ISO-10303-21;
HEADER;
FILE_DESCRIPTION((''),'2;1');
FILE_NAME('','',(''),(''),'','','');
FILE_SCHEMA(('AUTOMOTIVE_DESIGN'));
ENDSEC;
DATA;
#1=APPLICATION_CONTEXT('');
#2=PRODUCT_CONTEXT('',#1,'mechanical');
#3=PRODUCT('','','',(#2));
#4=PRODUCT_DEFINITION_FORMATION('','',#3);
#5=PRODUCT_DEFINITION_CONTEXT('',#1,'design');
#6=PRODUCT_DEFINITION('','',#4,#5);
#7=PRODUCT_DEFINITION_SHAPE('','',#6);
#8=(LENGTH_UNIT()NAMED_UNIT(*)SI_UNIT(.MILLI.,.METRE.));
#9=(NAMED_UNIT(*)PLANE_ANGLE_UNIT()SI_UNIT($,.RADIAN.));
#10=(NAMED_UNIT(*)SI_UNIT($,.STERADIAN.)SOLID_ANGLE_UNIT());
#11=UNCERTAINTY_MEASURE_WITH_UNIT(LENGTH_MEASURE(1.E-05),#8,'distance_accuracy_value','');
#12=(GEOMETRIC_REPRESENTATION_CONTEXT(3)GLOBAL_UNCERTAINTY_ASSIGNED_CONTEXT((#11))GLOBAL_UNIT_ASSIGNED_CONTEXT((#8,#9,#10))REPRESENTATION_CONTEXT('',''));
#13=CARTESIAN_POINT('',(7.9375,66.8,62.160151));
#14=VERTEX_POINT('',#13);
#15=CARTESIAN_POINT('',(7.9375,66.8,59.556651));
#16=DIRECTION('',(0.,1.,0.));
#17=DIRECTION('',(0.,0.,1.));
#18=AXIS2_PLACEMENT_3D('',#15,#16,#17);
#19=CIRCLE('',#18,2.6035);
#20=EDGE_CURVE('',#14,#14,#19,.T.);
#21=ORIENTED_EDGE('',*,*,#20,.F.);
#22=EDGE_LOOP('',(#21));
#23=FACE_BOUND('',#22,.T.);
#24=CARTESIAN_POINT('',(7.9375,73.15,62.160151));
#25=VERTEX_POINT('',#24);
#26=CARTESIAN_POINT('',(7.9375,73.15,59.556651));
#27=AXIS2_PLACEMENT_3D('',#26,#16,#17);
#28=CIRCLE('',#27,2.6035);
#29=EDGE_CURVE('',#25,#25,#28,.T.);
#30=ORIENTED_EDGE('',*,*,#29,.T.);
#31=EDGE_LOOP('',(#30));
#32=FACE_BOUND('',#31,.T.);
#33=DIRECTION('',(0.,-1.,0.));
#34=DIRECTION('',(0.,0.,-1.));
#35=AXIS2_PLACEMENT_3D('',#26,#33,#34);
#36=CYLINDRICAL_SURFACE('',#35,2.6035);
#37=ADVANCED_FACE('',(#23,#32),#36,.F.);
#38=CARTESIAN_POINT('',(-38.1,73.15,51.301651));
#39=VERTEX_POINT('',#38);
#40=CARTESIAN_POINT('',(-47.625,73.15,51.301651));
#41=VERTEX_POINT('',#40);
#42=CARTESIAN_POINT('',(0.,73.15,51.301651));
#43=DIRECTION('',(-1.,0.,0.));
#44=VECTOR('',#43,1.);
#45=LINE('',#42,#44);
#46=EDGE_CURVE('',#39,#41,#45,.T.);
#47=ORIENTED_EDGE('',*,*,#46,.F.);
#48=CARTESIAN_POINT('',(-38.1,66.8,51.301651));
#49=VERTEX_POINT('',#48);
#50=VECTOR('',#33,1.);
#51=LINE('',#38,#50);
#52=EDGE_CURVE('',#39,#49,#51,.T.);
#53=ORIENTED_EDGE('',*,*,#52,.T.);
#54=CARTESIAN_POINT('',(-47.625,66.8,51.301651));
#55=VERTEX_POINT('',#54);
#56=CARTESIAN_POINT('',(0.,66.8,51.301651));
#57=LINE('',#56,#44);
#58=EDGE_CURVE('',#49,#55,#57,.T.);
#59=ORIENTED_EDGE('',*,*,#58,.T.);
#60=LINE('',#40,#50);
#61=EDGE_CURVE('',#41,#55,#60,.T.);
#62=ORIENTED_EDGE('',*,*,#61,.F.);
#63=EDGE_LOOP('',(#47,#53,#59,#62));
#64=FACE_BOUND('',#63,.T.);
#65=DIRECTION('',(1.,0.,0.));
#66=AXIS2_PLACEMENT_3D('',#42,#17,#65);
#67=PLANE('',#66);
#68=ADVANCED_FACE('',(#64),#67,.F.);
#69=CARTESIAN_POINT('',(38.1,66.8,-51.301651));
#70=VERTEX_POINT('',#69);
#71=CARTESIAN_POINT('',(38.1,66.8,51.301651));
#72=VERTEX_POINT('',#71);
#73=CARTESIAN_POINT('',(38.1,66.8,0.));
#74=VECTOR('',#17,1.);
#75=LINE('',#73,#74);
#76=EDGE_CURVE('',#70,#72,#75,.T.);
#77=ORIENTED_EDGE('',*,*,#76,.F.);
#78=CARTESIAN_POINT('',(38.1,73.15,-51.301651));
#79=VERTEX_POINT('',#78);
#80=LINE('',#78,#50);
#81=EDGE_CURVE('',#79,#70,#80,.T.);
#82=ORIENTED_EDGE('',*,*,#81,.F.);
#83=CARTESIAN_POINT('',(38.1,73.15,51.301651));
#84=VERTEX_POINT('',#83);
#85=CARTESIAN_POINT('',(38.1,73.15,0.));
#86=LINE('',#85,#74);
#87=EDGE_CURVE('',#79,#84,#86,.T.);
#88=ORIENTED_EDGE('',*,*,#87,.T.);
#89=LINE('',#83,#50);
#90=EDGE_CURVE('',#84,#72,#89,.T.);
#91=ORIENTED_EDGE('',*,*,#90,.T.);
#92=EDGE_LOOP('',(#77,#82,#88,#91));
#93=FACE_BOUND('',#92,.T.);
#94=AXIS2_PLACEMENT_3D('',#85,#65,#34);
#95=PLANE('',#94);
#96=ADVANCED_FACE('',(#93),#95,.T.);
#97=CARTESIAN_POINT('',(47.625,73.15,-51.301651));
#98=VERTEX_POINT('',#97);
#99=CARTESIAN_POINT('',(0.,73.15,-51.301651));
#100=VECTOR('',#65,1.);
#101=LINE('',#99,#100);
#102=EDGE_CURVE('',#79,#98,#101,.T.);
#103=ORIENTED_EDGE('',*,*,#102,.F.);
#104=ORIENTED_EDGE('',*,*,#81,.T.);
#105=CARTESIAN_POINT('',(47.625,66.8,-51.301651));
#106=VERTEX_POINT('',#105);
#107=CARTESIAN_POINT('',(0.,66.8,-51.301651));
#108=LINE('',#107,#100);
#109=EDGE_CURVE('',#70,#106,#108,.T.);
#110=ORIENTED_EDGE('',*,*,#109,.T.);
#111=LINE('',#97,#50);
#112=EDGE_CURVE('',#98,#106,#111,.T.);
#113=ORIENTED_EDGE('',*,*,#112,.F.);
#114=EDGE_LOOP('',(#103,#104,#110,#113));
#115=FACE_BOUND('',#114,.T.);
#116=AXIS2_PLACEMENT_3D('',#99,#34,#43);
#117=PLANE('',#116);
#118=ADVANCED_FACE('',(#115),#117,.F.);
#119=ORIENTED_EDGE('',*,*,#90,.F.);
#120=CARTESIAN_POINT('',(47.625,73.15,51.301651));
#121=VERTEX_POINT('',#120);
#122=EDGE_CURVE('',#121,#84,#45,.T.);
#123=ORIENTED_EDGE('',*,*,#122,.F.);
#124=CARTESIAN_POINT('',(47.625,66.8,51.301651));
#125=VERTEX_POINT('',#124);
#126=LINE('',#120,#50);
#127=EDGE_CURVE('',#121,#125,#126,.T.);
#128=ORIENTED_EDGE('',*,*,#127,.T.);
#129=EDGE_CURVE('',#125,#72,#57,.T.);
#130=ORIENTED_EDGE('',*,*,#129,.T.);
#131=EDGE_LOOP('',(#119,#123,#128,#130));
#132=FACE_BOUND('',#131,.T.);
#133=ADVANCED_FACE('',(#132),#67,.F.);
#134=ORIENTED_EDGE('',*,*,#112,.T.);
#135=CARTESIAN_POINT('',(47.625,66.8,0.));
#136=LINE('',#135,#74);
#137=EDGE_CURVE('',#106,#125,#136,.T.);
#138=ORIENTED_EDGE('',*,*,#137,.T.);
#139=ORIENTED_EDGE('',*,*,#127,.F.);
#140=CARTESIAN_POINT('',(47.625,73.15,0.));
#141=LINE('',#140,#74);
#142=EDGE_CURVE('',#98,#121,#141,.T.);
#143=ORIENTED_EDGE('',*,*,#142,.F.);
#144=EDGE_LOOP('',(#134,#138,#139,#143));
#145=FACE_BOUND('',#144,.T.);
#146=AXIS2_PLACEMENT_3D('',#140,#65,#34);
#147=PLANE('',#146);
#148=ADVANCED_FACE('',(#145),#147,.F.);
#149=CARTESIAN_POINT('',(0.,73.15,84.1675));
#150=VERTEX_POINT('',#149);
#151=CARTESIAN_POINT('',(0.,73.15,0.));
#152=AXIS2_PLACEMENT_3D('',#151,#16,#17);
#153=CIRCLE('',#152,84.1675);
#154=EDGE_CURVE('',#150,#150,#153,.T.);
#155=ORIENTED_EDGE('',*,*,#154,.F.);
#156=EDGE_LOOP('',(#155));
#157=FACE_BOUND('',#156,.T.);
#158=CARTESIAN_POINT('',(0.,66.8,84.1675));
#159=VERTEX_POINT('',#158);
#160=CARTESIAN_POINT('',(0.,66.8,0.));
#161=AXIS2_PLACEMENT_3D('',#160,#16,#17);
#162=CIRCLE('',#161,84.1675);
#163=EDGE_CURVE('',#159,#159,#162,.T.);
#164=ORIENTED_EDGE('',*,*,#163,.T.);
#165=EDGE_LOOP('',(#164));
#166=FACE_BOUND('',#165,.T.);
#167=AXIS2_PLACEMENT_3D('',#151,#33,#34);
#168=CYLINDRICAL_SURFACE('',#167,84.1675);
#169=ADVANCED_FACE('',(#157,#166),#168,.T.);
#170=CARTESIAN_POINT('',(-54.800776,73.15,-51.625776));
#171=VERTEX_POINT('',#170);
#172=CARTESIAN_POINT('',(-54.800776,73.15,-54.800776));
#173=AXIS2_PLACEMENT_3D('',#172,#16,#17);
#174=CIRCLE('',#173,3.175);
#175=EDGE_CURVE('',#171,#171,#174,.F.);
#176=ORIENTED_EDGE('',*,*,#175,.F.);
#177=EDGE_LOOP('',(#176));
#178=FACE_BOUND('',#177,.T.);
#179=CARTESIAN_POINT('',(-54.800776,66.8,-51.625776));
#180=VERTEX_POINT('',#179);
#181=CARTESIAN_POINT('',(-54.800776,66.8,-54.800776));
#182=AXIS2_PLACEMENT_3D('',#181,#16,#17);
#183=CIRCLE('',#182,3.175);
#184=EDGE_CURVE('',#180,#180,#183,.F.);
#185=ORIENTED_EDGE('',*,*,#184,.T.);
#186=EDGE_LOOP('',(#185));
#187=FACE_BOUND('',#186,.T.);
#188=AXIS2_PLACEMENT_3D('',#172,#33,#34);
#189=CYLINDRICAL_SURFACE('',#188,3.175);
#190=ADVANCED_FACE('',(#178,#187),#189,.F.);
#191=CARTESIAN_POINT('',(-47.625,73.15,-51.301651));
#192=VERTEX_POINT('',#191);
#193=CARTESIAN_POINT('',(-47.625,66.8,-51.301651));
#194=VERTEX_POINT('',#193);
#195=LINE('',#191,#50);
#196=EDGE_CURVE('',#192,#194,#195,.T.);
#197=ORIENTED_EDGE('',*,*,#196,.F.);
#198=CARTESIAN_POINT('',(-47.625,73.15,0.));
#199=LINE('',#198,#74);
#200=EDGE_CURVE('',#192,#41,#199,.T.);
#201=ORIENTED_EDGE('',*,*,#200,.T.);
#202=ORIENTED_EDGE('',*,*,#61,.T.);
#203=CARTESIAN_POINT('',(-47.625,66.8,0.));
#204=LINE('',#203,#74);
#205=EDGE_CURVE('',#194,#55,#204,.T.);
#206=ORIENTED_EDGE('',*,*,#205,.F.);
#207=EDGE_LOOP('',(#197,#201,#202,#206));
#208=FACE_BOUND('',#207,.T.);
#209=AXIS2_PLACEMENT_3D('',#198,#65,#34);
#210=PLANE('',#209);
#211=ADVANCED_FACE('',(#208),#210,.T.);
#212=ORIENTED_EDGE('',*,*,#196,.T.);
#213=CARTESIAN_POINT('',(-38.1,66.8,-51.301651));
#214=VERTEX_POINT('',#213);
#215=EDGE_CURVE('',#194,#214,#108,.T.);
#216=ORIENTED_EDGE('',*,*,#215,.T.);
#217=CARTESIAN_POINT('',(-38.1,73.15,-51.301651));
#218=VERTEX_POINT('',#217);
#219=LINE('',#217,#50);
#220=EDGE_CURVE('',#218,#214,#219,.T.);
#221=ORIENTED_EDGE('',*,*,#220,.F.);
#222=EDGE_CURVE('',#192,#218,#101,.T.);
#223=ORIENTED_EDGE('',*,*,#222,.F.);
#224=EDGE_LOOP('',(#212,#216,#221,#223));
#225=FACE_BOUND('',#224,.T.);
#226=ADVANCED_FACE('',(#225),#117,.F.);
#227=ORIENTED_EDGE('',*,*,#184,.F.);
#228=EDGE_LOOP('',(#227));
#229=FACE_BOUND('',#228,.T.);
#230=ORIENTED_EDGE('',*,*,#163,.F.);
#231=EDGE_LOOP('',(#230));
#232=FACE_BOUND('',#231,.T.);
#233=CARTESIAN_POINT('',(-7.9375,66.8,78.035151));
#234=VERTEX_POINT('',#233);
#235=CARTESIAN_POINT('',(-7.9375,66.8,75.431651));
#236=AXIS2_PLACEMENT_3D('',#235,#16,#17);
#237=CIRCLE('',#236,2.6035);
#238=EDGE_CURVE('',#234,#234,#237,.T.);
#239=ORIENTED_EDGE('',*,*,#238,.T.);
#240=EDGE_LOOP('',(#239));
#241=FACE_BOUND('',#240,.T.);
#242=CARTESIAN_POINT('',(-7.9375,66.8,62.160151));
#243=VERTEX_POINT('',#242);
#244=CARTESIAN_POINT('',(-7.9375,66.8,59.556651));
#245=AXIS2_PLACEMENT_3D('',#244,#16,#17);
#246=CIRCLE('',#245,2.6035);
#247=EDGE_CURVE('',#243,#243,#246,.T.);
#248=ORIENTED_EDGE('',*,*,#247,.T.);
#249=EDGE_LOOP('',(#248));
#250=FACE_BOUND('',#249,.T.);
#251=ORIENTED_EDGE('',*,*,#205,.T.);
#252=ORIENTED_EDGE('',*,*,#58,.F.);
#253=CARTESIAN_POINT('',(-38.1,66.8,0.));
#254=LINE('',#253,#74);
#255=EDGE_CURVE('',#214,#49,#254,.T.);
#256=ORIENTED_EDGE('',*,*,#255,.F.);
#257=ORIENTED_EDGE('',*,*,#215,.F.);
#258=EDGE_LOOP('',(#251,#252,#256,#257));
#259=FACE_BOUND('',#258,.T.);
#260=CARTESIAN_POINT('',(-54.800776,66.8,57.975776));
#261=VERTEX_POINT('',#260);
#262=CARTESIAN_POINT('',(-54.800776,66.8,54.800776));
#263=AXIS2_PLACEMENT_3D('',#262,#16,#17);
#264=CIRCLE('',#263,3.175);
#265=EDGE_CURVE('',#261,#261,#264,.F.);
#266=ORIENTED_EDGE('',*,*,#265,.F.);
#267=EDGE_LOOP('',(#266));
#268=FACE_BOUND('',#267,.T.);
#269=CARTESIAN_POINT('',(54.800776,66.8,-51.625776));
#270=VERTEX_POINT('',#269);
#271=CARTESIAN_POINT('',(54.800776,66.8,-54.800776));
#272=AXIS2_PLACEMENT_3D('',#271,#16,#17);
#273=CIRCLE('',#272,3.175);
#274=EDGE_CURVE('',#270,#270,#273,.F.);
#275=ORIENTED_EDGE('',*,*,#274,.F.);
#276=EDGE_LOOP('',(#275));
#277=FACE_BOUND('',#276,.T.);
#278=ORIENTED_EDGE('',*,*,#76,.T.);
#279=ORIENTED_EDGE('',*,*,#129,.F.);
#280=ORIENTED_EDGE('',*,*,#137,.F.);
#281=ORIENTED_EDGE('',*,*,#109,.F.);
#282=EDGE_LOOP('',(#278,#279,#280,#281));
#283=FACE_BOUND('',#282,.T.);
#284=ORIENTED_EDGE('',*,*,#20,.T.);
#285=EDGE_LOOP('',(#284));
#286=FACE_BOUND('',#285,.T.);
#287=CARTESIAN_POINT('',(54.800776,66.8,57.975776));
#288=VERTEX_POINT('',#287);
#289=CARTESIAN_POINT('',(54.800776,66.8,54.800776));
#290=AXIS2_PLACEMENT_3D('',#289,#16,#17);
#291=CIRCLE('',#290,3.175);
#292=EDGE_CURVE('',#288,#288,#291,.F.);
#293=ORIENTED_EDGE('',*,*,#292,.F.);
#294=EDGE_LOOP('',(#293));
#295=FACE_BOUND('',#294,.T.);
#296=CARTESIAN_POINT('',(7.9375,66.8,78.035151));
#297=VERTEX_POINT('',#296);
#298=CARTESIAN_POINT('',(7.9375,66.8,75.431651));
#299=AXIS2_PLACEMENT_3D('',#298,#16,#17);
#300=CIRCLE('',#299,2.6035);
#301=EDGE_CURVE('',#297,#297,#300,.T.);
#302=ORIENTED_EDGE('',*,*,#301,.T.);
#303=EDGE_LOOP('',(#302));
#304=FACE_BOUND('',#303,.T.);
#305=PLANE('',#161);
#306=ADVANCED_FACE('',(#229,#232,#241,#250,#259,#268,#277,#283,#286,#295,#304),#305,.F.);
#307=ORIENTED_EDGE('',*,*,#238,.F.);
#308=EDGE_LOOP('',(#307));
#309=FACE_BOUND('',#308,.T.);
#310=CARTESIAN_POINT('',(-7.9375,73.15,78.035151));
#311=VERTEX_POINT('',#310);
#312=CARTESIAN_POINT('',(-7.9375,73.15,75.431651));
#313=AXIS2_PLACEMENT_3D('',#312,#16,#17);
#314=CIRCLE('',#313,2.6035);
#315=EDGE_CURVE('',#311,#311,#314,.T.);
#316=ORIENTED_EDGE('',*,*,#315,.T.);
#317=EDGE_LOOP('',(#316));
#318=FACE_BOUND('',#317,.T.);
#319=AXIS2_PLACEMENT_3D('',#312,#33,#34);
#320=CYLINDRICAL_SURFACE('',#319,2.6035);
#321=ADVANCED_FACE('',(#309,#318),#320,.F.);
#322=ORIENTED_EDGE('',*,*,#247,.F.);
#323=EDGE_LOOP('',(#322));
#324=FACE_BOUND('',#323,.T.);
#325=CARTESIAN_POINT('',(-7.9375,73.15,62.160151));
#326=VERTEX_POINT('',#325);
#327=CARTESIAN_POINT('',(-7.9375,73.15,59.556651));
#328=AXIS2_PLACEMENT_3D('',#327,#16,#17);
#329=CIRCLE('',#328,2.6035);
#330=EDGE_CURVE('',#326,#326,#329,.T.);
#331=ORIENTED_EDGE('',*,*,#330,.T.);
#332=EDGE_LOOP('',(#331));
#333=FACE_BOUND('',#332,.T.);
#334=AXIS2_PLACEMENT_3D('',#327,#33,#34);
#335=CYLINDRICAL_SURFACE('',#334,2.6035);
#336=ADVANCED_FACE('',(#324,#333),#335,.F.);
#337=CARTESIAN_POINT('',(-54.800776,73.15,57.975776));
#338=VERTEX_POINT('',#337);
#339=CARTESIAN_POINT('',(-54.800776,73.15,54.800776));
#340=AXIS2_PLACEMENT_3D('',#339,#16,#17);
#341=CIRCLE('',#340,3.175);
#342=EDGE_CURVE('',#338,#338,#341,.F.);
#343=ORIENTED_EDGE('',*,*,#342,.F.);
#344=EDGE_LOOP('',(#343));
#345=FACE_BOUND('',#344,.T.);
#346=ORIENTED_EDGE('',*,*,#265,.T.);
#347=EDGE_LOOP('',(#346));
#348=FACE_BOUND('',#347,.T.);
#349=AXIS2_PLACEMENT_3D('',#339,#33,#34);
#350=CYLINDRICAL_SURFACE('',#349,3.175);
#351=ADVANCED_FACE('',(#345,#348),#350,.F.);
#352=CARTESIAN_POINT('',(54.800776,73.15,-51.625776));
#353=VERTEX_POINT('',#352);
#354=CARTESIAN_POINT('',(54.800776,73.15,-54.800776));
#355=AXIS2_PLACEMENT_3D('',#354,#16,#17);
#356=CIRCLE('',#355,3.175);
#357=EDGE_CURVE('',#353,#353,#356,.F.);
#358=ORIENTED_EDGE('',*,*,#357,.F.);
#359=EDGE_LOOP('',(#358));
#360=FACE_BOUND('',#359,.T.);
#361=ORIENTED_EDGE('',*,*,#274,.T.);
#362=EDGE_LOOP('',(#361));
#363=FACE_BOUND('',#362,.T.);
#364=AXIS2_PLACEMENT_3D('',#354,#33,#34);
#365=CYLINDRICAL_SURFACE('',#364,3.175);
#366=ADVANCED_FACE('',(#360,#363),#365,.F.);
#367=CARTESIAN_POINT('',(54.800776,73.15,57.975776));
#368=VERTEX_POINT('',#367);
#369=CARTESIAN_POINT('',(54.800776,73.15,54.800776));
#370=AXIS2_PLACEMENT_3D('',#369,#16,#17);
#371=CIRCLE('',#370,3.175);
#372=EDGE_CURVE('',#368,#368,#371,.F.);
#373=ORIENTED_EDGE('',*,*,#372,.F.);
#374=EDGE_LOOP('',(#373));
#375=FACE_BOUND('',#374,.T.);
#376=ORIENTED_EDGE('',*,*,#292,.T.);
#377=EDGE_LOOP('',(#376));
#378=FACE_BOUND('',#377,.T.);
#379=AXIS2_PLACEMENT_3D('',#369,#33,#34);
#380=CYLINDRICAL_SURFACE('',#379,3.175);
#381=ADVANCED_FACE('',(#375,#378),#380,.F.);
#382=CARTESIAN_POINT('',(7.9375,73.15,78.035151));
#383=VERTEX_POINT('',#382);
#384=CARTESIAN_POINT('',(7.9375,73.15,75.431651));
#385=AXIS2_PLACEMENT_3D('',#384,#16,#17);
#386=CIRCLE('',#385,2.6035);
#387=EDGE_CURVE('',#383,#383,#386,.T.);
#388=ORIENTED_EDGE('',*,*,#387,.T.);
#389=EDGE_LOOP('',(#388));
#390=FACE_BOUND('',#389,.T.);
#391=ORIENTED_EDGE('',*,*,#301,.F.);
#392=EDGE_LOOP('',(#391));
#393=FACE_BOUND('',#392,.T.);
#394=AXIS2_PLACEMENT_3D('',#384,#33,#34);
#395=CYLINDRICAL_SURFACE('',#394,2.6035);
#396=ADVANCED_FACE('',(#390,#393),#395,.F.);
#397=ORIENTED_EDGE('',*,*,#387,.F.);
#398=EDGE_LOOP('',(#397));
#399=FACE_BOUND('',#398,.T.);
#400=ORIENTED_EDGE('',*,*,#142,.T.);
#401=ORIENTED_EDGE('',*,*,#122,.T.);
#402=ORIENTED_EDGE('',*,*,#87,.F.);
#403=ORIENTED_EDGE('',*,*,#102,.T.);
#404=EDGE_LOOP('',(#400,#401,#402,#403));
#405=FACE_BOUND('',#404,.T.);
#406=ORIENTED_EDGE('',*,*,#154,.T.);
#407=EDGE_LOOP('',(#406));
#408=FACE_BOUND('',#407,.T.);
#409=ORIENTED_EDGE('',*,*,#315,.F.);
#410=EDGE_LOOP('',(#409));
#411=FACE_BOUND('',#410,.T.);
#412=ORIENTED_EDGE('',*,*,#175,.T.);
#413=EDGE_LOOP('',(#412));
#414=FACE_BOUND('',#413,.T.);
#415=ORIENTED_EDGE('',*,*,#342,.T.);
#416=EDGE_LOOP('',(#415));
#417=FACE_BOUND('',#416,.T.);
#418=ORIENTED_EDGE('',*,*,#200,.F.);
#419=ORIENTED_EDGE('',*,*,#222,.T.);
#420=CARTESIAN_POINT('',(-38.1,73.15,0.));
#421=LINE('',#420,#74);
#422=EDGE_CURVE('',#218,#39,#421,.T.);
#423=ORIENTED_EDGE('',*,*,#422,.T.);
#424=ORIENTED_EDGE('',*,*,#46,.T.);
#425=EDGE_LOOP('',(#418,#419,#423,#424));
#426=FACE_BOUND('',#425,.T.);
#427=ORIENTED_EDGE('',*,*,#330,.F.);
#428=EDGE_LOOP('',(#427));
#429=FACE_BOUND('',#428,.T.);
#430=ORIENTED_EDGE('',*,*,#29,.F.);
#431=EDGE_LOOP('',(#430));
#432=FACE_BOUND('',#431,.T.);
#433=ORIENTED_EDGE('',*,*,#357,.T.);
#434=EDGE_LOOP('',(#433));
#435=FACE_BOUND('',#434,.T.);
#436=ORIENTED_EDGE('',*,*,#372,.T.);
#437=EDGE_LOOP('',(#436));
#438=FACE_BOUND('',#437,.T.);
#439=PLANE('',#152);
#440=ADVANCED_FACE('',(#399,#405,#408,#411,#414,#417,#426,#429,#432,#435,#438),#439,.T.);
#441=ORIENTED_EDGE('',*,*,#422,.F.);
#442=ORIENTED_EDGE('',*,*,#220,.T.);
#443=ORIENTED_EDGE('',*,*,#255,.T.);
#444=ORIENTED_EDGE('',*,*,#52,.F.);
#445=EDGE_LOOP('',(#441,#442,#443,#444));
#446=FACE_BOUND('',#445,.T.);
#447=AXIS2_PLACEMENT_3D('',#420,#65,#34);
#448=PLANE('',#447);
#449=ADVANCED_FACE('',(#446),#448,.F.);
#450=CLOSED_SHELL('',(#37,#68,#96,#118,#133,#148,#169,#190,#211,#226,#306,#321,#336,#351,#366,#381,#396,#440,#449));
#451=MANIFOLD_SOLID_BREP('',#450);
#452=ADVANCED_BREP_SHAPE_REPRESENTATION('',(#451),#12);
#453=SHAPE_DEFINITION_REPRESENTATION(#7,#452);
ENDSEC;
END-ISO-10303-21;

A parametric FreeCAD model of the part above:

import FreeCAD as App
import Part
import Sketcher

V = App.Vector
Q = App.Units.Quantity

doc = App.newDocument("Part")
body = doc.addObject("PartDesign::Body", "Body")

# Sketch on XZ plane
sketch1 = body.newObject("Sketcher::SketchObject", "Sketch")
sketch1.AttachmentSupport = (doc.getObject("XZ_Plane"), [""])
sketch1.MapMode = "FlatFace"
sketch1.AttachmentOffset = App.Placement(V(0, 0, -66.8), App.Rotation())
sketch1.addGeometry(Part.Circle(V(0, 0, 0), V(0, 0, 1), 84.2), False)
sketch1.addGeometry(Part.Circle(V(-54.8, -54.8, 0), V(0, 0, 1), 3.2), False)
sketch1.addGeometry(Part.LineSegment(V(-38.1, 51.3, 0), V(-47.6, 51.3, 0)), False)
sketch1.addGeometry(Part.LineSegment(V(-47.6, 51.3, 0), V(-47.6, -51.3, 0)), False)
sketch1.addGeometry(Part.LineSegment(V(-47.6, -51.3, 0), V(-38.1, -51.3, 0)), False)
sketch1.addGeometry(Part.LineSegment(V(-38.1, -51.3, 0), V(-38.1, 51.3, 0)), False)
sketch1.addGeometry(Part.Circle(V(-54.8, 54.8, 0), V(0, 0, 1), 3.2), False)
sketch1.addGeometry(Part.Circle(V(-7.9, 59.6, 0), V(0, 0, 1), 2.6), False)
sketch1.addGeometry(Part.Circle(V(-7.9, 75.4, 0), V(0, 0, 1), 2.6), False)
sketch1.addGeometry(Part.Circle(V(54.8, -54.8, 0), V(0, 0, 1), 3.2), False)
sketch1.addGeometry(Part.LineSegment(V(47.6, 51.3, 0), V(38.1, 51.3, 0)), False)
sketch1.addGeometry(Part.LineSegment(V(38.1, 51.3, 0), V(38.1, -51.3, 0)), False)
sketch1.addGeometry(Part.LineSegment(V(38.1, -51.3, 0), V(47.6, -51.3, 0)), False)
sketch1.addGeometry(Part.LineSegment(V(47.6, -51.3, 0), V(47.6, 51.3, 0)), False)
sketch1.addGeometry(Part.Circle(V(7.9, 59.6, 0), V(0, 0, 1), 2.6), False)
sketch1.addGeometry(Part.Circle(V(7.9, 75.4, 0), V(0, 0, 1), 2.6), False)
sketch1.addGeometry(Part.Circle(V(54.8, 54.8, 0), V(0, 0, 1), 3.2), False)
sketch1.addConstraint(Sketcher.Constraint("Coincident", 2, 2, 3, 1))
sketch1.addConstraint(Sketcher.Constraint("Coincident", 3, 2, 4, 1))
sketch1.addConstraint(Sketcher.Constraint("Coincident", 4, 2, 5, 1))
sketch1.addConstraint(Sketcher.Constraint("Coincident", 5, 2, 2, 1))
sketch1.addConstraint(Sketcher.Constraint("Coincident", 10, 2, 11, 1))
sketch1.addConstraint(Sketcher.Constraint("Coincident", 11, 2, 12, 1))
sketch1.addConstraint(Sketcher.Constraint("Coincident", 12, 2, 13, 1))
sketch1.addConstraint(Sketcher.Constraint("Coincident", 13, 2, 10, 1))
sketch1.addConstraint(Sketcher.Constraint("Horizontal", 2))
sketch1.addConstraint(Sketcher.Constraint("Vertical", 3))
sketch1.addConstraint(Sketcher.Constraint("Horizontal", 4))
sketch1.addConstraint(Sketcher.Constraint("Vertical", 5))
sketch1.addConstraint(Sketcher.Constraint("Horizontal", 10))
sketch1.addConstraint(Sketcher.Constraint("Vertical", 11))
sketch1.addConstraint(Sketcher.Constraint("Horizontal", 12))
sketch1.addConstraint(Sketcher.Constraint("Vertical", 13))
sketch1.addConstraint(Sketcher.Constraint("Coincident", 0, 3, -1, 1))
sketch1.addConstraint(Sketcher.Constraint("Equal", 1, 6))
sketch1.addConstraint(Sketcher.Constraint("Equal", 7, 8))
sketch1.addConstraint(Sketcher.Constraint("Equal", 6, 9))
sketch1.addConstraint(Sketcher.Constraint("Equal", 8, 14))
sketch1.addConstraint(Sketcher.Constraint("Equal", 14, 15))
sketch1.addConstraint(Sketcher.Constraint("Equal", 9, 16))
sketch1.addConstraint(Sketcher.Constraint("Symmetric", 6, 3, 9, 3, -1, 1))
sketch1.addConstraint(Sketcher.Constraint("Symmetric", 1, 3, 16, 3, -1, 1))
sketch1.addConstraint(Sketcher.Constraint("Symmetric", 4, 2, 10, 2, -1, 1))
sketch1.addConstraint(Sketcher.Constraint("Symmetric", 2, 2, 12, 2, -1, 1))
sketch1.addConstraint(Sketcher.Constraint("Symmetric", 1, 3, 9, 3, -2))
sketch1.addConstraint(Sketcher.Constraint("Symmetric", 7, 3, 14, 3, -2))
sketch1.addConstraint(Sketcher.Constraint("Symmetric", 8, 3, 15, 3, -2))
sketch1.addConstraint(Sketcher.Constraint("Horizontal", 5, 2, 10, 2))
sketch1.addConstraint(Sketcher.Constraint("Vertical", 7, 3, 8, 3))
sketch1.addConstraint(Sketcher.Constraint("Diameter", 1, Q("0.25 in")))
sketch1.addConstraint(Sketcher.Constraint("Diameter", 7, Q("0.205 in")))
sketch1.addConstraint(Sketcher.Constraint("DistanceX", 4, 2, 11, 2, Q("3 in")))
sketch1.addConstraint(Sketcher.Constraint("Diameter", 0, Q("168.335 mm")))
sketch1.addConstraint(Sketcher.Constraint("DistanceX", 2, 2, 2, 1, Q("0.375 in")))
sketch1.addConstraint(Sketcher.Constraint("DistanceY", 2, 2, 8, 3, Q("0.95 in")))
sketch1.addConstraint(Sketcher.Constraint("DistanceY", 3, 2, 3, 1, Q("4.0395001 in")))
sketch1.addConstraint(Sketcher.Constraint("DistanceX", 7, 3, -1, 1, Q("0.3125 in")))
sketch1.addConstraint(Sketcher.Constraint("DistanceY", 7, 3, 8, 3, Q("0.625 in")))
sketch1.addConstraint(Sketcher.Constraint("DistanceY", 1, 3, 6, 3, Q("109.601551 mm")))
sketch1.addConstraint(Sketcher.Constraint("DistanceX", 1, 3, 9, 3, Q("109.601551 mm")))
pad1 = body.newObject("PartDesign::Pad", "Pad")
pad1.Profile = sketch1
pad1.Length = Q("0.25 in")
pad1.Reversed = True

doc.recompute()
